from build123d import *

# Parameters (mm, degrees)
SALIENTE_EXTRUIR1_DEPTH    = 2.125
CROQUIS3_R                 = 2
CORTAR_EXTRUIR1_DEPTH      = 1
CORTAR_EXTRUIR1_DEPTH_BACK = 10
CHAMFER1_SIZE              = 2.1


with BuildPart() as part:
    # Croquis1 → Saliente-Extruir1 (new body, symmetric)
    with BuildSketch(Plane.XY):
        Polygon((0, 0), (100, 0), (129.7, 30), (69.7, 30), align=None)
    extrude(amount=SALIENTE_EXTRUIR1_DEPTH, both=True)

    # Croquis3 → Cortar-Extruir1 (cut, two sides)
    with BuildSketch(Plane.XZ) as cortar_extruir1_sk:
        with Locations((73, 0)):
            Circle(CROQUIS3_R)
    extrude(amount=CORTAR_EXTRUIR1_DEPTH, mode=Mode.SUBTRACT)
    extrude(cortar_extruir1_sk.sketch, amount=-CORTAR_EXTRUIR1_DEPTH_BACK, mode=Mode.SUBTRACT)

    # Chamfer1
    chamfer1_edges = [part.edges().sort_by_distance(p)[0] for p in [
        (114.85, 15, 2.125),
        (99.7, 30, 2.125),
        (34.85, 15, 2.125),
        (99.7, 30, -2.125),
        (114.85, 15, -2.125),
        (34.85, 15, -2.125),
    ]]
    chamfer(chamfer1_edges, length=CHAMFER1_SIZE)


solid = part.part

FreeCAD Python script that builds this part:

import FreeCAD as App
import Part
import Sketcher
from FreeCAD import Vector
Q = App.Units.Quantity


def edges_at(feature, points):
    """Names of the edges that pass closest to the given points."""
    edges = feature.Shape.Edges
    near = lambda p: min(range(len(edges)), key=lambda i: edges[i].distToShape(Part.Vertex(*p))[0])
    return sorted({f"Edge{near(p) + 1}" for p in points})

doc = App.newDocument("Part")
body = doc.addObject("PartDesign::Body", "Body")

# Sketch on XY plane
sketch1 = body.newObject("Sketcher::SketchObject", "Sketch")
sketch1.AttachmentSupport = (doc.getObject("XY_Plane"), [""])
sketch1.MapMode = "FlatFace"
sketch1.addGeometry(Part.LineSegment(Vector(0, 0, 0), Vector(100, 0, 0)), False)
sketch1.addGeometry(Part.LineSegment(Vector(100, 0, 0), Vector(129.7, 30, 0)), False)
sketch1.addGeometry(Part.LineSegment(Vector(129.7, 30, 0), Vector(69.7, 30, 0)), False)
sketch1.addGeometry(Part.LineSegment(Vector(69.7, 30, 0), Vector(0, 0, 0)), False)
sketch1.addConstraint(Sketcher.Constraint("Coincident", 0, 2, 1, 1))
sketch1.addConstraint(Sketcher.Constraint("Coincident", 1, 2, 2, 1))
sketch1.addConstraint(Sketcher.Constraint("Coincident", 2, 2, 3, 1))
sketch1.addConstraint(Sketcher.Constraint("Coincident", 3, 2, 0, 1))
sketch1.addConstraint(Sketcher.Constraint("Horizontal", 0))
sketch1.addConstraint(Sketcher.Constraint("Horizontal", 2))
sketch1.addConstraint(Sketcher.Constraint("Coincident", 3, 2, -1, 1))
sketch1.addConstraint(Sketcher.Constraint("DistanceX", 0, 1, 0, 2, Q("100 mm")))
sketch1.addConstraint(Sketcher.Constraint("DistanceX", 2, 2, 2, 1, Q("60 mm")))
sketch1.addConstraint(Sketcher.Constraint("DistanceY", -1, 1, 1, 2, Q("30 mm")))
sketch1.addConstraint(Sketcher.Constraint("DistanceX", -1, 1, 1, 2, Q("129.7 mm")))
pad1 = body.newObject("PartDesign::Pad", "Pad")
pad1.Profile = sketch1
pad1.Length = 4.25
pad1.Midplane = True

# Sketch on XZ plane
sketch2 = body.newObject("Sketcher::SketchObject", "Sketch001")
sketch2.AttachmentSupport = (doc.getObject("XZ_Plane"), [""])
sketch2.MapMode = "FlatFace"
sketch2.addGeometry(Part.Circle(Vector(73, 0, 0), Vector(0, 0, 1), 2), False)
sketch2.addConstraint(Sketcher.Constraint("PointOnObject", 0, 3, -1))
sketch2.addConstraint(Sketcher.Constraint("Diameter", 0, Q("4 mm")))
sketch2.addConstraint(Sketcher.Constraint("DistanceX", -1, 1, 0, 3, Q("73 mm")))
pocket1 = body.newObject("PartDesign::Pocket", "Pocket")
pocket1.Profile = sketch2
pocket1.Type = "TwoLengths"
pocket1.Length = 1
pocket1.Length2 = 10
pocket1.Reversed = True
doc.recompute()

chamfer = body.newObject("PartDesign::Chamfer", "Chamfer")
chamfer.Base = (pocket1, edges_at(pocket1, [
    (114.85, 15, 2.125),
    (99.7, 30, 2.125),
    (34.85, 15, 2.125),
    (99.7, 30, -2.125),
    (114.85, 15, -2.125),
    (34.85, 15, -2.125),
]))
chamfer.Size = 2.1

doc.recompute()
